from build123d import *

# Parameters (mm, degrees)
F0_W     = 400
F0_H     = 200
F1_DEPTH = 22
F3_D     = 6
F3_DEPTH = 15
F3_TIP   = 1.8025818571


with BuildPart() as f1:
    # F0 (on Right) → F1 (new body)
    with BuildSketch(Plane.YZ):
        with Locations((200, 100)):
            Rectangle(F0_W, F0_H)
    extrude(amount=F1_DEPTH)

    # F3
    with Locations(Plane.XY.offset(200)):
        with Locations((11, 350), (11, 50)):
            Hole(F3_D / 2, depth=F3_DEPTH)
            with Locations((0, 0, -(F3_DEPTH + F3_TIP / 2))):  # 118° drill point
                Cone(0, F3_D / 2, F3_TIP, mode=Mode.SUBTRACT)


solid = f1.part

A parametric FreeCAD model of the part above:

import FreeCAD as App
import Part
import Sketcher
from FreeCAD import Vector
Q = App.Units.Quantity


def add_polygon(sketch, points):
    """Adds a closed chain of lines whose ends are joined by coincident constraints."""
    first, n = sketch.GeometryCount, len(points)
    for a, b in zip(points, points[1:] + points[:1]):
        sketch.addGeometry(Part.LineSegment(App.Vector(*a, 0), App.Vector(*b, 0)), False)
    for i in range(n):
        sketch.addConstraint(Sketcher.Constraint("Coincident", first + i, 2, first + (i + 1) % n, 1))

doc = App.newDocument("Part")
params = doc.addObject("Spreadsheet::Sheet", "Params")
for row, (alias, value) in enumerate([
    ("sketch1_width", "400 mm"),
    ("sketch1_height", "200 mm"),
    ("pad1_length", "22 mm"),
    ("sketch2_diameter", "6 mm"),
    ("hole_diameter", "6 mm"),
    ("hole_depth", "15 mm"),
], start=1):
    params.set(f"A{row}", alias)
    params.set(f"B{row}", "=" + value)
    params.setAlias(f"B{row}", alias)

body = doc.addObject("PartDesign::Body", "Body")

# Sketch on YZ plane
sketch1 = body.newObject("Sketcher::SketchObject", "Sketch")
sketch1.AttachmentSupport = (doc.getObject("YZ_Plane"), [""])
sketch1.MapMode = "FlatFace"
add_polygon(sketch1, [(0, 200), (0, 0), (400, 0), (400, 200)])  # lines 0-3
sketch1.addConstraint([
    Sketcher.Constraint("Vertical", 0),
    Sketcher.Constraint("Horizontal", 1),
    Sketcher.Constraint("Vertical", 2),
    Sketcher.Constraint("Horizontal", 3),
    Sketcher.Constraint("Coincident", 0, 2, -1, 1),
    Sketcher.Constraint("DistanceX", 1, 1, 1, 2, Q("400 mm")),
    Sketcher.Constraint("DistanceY", 0, 2, 0, 1, Q("200 mm")),
])
sketch1.setExpression("Constraints[9]", "Params.sketch1_width")
sketch1.setExpression("Constraints[10]", "Params.sketch1_height")
pad1 = body.newObject("PartDesign::Pad", "Pad")
pad1.Profile = sketch1
pad1.setExpression("Length", "Params.pad1_length")

# Sketch on XY plane
sketch2 = body.newObject("Sketcher::SketchObject", "Sketch001")
sketch2.AttachmentSupport = (doc.getObject("XY_Plane"), [""])
sketch2.MapMode = "FlatFace"
sketch2.AttachmentOffset = App.Placement(Vector(0, 0, 200), App.Rotation())
sketch2.addGeometry([
    Part.Circle(Vector(11, 350, 0), Vector(0, 0, 1), 3),
    Part.Circle(Vector(11, 50, 0), Vector(0, 0, 1), 3),
], False)
sketch2.addConstraint([
    Sketcher.Constraint("Equal", 0, 1),
    Sketcher.Constraint("Vertical", 0, 3, 1, 3),
    Sketcher.Constraint("Diameter", 0, Q("6 mm")),
    Sketcher.Constraint("DistanceX", -1, 1, 0, 3, Q("11 mm")),
    Sketcher.Constraint("DistanceY", -1, 1, 0, 3, Q("350 mm")),
    Sketcher.Constraint("DistanceY", -1, 1, 1, 3, Q("50 mm")),
])
sketch2.setExpression("Constraints[2]", "Params.sketch2_diameter")
doc.recompute()
hole = body.newObject("PartDesign::Hole", "Hole")
hole.Profile = sketch2
hole.ThreadType = "None"
hole.setExpression("Diameter", "Params.hole_diameter")
hole.DepthType = "Dimension"
hole.setExpression("Depth", "Params.hole_depth")
hole.DrillPoint = "Angled"
hole.DrillPointAngle = 118

doc.recompute()
